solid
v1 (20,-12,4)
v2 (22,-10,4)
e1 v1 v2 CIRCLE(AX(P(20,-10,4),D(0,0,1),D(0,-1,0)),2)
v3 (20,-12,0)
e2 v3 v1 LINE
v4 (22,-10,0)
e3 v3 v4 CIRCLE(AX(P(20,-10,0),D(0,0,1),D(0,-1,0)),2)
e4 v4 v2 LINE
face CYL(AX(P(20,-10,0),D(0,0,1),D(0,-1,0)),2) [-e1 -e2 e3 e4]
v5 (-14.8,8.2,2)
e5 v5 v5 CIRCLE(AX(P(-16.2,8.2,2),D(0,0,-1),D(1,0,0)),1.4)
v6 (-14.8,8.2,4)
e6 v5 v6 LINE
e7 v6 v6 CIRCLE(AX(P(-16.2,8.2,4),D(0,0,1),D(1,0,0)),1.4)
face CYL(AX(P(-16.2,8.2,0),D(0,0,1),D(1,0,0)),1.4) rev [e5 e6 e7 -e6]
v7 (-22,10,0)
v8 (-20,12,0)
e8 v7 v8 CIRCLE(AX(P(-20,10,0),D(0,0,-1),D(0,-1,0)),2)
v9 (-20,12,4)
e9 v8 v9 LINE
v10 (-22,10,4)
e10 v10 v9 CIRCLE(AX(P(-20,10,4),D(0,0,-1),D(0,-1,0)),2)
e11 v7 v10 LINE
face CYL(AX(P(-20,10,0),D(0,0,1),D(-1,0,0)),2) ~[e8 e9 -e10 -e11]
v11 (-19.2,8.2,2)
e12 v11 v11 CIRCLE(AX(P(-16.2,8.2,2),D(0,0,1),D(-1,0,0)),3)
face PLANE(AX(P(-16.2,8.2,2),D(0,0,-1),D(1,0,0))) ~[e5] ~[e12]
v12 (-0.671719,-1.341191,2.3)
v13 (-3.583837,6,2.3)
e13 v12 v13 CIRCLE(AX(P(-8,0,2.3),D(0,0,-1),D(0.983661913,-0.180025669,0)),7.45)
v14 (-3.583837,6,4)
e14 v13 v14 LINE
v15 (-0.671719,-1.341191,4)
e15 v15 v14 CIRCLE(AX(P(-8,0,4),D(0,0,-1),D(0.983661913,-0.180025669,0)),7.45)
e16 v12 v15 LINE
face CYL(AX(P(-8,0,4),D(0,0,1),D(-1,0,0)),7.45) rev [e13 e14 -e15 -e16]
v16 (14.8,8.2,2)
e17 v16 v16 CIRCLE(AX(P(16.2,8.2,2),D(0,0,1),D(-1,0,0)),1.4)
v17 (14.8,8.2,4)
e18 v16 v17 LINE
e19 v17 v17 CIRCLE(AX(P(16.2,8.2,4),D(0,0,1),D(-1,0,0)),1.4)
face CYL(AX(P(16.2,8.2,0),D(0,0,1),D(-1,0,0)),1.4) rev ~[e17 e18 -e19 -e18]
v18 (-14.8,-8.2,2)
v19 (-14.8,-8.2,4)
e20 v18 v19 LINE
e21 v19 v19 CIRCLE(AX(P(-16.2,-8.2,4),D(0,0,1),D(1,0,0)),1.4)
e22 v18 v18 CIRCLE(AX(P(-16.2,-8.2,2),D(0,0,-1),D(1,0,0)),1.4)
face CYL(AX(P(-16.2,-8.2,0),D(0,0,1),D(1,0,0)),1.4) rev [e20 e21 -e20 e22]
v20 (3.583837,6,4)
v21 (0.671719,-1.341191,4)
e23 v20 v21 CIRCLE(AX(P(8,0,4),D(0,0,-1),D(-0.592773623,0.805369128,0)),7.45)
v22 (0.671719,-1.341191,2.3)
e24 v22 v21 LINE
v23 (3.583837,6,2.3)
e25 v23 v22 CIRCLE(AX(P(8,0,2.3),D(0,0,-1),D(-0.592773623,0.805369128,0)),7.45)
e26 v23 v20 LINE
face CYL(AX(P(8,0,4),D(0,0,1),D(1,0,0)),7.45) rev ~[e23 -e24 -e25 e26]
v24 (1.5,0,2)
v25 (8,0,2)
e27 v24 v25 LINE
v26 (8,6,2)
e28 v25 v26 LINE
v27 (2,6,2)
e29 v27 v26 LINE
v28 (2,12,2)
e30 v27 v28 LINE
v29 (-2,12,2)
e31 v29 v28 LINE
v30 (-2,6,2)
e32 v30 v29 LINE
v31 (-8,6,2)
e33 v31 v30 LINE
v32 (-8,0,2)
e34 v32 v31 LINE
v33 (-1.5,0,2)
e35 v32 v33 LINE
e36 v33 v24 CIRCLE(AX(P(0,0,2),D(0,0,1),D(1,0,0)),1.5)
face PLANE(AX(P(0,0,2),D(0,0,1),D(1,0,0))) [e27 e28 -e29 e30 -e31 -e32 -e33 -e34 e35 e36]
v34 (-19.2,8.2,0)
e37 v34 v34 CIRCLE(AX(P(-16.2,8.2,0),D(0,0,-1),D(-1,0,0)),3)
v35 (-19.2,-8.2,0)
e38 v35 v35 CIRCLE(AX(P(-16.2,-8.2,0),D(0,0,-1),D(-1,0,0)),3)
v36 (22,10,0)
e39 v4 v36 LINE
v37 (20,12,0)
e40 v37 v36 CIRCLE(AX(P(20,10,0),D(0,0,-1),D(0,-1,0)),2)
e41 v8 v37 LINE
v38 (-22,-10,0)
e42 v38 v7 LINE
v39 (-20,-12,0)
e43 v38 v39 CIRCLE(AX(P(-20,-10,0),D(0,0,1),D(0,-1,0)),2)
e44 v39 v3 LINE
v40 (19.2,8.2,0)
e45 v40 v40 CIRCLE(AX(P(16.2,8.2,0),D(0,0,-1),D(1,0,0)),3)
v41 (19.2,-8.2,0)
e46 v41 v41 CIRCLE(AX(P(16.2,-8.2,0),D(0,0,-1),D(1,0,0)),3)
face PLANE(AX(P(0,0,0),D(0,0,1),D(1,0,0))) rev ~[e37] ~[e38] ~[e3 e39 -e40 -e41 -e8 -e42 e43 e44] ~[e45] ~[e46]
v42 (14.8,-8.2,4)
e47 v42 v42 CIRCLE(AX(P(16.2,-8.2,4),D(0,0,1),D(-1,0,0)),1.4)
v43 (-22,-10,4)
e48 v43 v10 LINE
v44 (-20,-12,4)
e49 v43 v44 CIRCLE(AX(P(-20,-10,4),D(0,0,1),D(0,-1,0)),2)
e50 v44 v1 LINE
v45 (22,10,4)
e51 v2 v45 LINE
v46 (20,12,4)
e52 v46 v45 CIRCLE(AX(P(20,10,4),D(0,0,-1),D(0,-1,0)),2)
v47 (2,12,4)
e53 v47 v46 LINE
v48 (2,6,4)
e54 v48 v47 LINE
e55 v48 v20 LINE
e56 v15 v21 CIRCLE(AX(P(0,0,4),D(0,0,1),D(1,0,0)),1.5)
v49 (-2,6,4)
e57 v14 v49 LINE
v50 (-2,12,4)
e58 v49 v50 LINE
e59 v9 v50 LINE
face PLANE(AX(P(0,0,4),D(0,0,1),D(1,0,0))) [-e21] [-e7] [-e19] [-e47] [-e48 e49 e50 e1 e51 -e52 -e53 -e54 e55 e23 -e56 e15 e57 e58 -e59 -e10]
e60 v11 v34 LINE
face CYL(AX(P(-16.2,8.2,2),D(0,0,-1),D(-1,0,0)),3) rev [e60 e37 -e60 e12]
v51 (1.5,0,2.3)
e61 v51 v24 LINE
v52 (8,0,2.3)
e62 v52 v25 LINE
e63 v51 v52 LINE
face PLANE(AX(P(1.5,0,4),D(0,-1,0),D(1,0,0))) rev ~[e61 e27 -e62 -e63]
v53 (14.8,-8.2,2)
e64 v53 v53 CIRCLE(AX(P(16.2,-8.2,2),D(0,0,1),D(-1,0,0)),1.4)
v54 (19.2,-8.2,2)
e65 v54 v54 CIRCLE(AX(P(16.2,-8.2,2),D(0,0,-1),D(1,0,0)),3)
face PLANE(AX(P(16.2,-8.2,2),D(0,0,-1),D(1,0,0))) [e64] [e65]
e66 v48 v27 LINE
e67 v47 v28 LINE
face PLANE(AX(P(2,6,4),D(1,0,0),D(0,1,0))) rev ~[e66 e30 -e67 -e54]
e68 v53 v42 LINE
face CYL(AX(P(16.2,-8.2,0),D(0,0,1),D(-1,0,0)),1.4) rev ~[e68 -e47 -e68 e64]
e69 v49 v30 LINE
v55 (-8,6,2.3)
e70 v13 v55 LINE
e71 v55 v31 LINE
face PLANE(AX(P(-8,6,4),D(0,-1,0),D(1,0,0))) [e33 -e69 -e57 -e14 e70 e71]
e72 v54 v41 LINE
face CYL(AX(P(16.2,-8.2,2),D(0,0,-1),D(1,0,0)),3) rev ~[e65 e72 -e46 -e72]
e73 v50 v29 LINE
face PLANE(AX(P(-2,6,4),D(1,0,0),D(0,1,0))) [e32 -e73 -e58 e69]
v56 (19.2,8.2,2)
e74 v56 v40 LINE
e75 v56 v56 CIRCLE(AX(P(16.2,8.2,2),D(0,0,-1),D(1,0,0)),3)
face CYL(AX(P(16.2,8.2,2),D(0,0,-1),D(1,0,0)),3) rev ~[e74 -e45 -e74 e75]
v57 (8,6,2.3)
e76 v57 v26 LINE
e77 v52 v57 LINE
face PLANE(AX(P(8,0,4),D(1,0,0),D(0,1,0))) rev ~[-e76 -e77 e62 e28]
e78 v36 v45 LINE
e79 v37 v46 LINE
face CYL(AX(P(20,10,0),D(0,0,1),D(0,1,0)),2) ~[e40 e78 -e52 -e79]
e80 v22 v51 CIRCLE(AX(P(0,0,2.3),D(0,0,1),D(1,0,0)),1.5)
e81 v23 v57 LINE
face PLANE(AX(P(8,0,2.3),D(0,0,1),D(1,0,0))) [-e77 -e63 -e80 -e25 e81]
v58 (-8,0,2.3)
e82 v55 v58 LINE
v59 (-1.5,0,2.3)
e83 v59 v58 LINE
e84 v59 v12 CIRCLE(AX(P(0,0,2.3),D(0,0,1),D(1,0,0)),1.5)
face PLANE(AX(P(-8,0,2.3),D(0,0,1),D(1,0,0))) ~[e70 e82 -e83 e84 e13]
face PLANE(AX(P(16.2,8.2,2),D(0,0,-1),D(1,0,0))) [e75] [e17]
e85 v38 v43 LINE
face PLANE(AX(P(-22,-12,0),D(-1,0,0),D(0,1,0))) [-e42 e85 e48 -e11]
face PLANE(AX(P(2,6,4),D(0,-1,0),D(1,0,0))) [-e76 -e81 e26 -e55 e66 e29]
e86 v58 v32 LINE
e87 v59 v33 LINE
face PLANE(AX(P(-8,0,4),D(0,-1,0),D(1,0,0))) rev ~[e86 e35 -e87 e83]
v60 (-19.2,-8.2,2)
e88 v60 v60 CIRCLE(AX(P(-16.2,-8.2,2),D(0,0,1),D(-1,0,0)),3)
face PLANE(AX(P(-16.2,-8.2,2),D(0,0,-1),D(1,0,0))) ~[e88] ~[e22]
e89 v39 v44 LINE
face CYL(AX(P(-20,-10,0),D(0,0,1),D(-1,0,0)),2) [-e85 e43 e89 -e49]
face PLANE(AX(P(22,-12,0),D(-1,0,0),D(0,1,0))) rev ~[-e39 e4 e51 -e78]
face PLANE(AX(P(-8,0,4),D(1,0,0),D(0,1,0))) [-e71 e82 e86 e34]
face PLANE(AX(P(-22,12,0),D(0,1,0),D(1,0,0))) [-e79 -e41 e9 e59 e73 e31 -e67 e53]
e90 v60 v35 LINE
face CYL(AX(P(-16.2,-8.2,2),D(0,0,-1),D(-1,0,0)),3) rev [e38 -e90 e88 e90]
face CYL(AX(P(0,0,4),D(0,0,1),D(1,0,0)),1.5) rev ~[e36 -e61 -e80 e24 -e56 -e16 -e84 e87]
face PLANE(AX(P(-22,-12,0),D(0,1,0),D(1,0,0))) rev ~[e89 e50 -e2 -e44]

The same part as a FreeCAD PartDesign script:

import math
import FreeCAD as App
import Part
import Sketcher


def edges_at(feature, points):
    """Names of the edges that pass closest to the given points."""
    edges = feature.Shape.Edges
    near = lambda p: min(range(len(edges)), key=lambda i: edges[i].distToShape(Part.Vertex(*p))[0])
    return sorted({f"Edge{near(p) + 1}" for p in points})

doc = App.newDocument("Part")
body = doc.addObject("PartDesign::Body", "Body")

# Sketch on XY plane
sketch1 = body.newObject("Sketcher::SketchObject", "Sketch")
sketch1.AttachmentSupport = (doc.getObject("XY_Plane"), [""])
sketch1.MapMode = "FlatFace"
sketch1.addGeometry([
    Part.LineSegment(App.Vector(-22, 12, 0), App.Vector(-22, -12, 0)),
    Part.LineSegment(App.Vector(-22, -12, 0), App.Vector(22, -12, 0)),
    Part.LineSegment(App.Vector(22, -12, 0), App.Vector(22, 12, 0)),
    Part.LineSegment(App.Vector(22, 12, 0), App.Vector(-22, 12, 0)),
], False)
sketch1.addConstraint([
    Sketcher.Constraint("Coincident", 0, 2, 1, 1),
    Sketcher.Constraint("Coincident", 1, 2, 2, 1),
    Sketcher.Constraint("Coincident", 2, 2, 3, 1),
    Sketcher.Constraint("Coincident", 3, 2, 0, 1),
    Sketcher.Constraint("Vertical", 0),
    Sketcher.Constraint("Horizontal", 1),
    Sketcher.Constraint("Vertical", 2),
    Sketcher.Constraint("Horizontal", 3),
    Sketcher.Constraint("Symmetric", 0, 2, 2, 2, -1, 1),
    Sketcher.Constraint("DistanceX", 1, 1, 1, 2, 44.0),
    Sketcher.Constraint("DistanceY", 0, 2, 0, 1, 24.0),
])
pad1 = body.newObject("PartDesign::Pad", "Pad")
pad1.Profile = sketch1
pad1.Length = 4

# Sketch on XY plane
sketch2 = body.newObject("Sketcher::SketchObject", "Sketch001")
sketch2.AttachmentSupport = (doc.getObject("XY_Plane"), [""])
sketch2.MapMode = "FlatFace"
sketch2.AttachmentOffset = App.Placement(App.Vector(0, 0, 4), App.Rotation())
sketch2.addGeometry(Part.Circle(App.Vector(8, 0, 0), App.Vector(0, 0, 1), 7), False)
sketch2.addConstraint([
    Sketcher.Constraint("PointOnObject", 0, 3, -1),
    Sketcher.Constraint("Diameter", 0, 14.9),
    Sketcher.Constraint("DistanceX", -1, 1, 0, 3, 8.0),
])
pocket1 = body.newObject("PartDesign::Pocket", "Pocket")
pocket1.Profile = sketch2
pocket1.Length = 1.7
doc.recompute()

mirrored = body.newObject("PartDesign::Mirrored", "Mirrored")
mirrored.Originals = [pocket1]
mirrored.MirrorPlane = (doc.getObject("YZ_Plane"), [""])
body.Tip = mirrored

# Sketch on XY plane
sketch3 = body.newObject("Sketcher::SketchObject", "Sketch002")
sketch3.AttachmentSupport = (doc.getObject("XY_Plane"), [""])
sketch3.MapMode = "FlatFace"
sketch3.AttachmentOffset = App.Placement(App.Vector(0, 0, 4), App.Rotation())
sketch3.addGeometry([
    Part.ArcOfCircle(Part.Circle(App.Vector(0, 0, 0), App.Vector(0, 0, 1), 1.5), math.radians(180), math.radians(360)),  # 0
    Part.LineSegment(App.Vector(1.5, 0, 0), App.Vector(8, 0, 0)),  # 1
    Part.LineSegment(App.Vector(8, 0, 0), App.Vector(8, 6, 0)),  # 2
    Part.LineSegment(App.Vector(8, 6, 0), App.Vector(2, 6, 0)),  # 3
    Part.LineSegment(App.Vector(2, 6, 0), App.Vector(2, 12, 0)),  # 4
    Part.LineSegment(App.Vector(2, 12, 0), App.Vector(-2, 12, 0)),  # 5
    Part.LineSegment(App.Vector(-2, 12, 0), App.Vector(-2, 6, 0)),  # 6
    Part.LineSegment(App.Vector(-2, 6, 0), App.Vector(-8, 6, 0)),  # 7
    Part.LineSegment(App.Vector(-8, 6, 0), App.Vector(-8, 0, 0)),  # 8
    Part.LineSegment(App.Vector(-8, 0, 0), App.Vector(-1.5, 0, 0)),  # 9
], False)
sketch3.addConstraint([
    Sketcher.Constraint("Coincident", 0, 2, 1, 1),
    Sketcher.Constraint("Coincident", 1, 2, 2, 1),
    Sketcher.Constraint("Coincident", 2, 2, 3, 1),
    Sketcher.Constraint("Coincident", 3, 2, 4, 1),
    Sketcher.Constraint("Coincident", 4, 2, 5, 1),
    Sketcher.Constraint("Coincident", 5, 2, 6, 1),
    Sketcher.Constraint("Coincident", 6, 2, 7, 1),
    Sketcher.Constraint("Coincident", 7, 2, 8, 1),
    Sketcher.Constraint("Coincident", 8, 2, 9, 1),
    Sketcher.Constraint("Coincident", 9, 2, 0, 1),
    Sketcher.Constraint("Horizontal", 1),
    Sketcher.Constraint("Vertical", 2),
    Sketcher.Constraint("Horizontal", 3),
    Sketcher.Constraint("Vertical", 4),
    Sketcher.Constraint("Horizontal", 5),
    Sketcher.Constraint("Vertical", 6),
    Sketcher.Constraint("Horizontal", 7),
    Sketcher.Constraint("Vertical", 8),
    Sketcher.Constraint("Horizontal", 9),
    Sketcher.Constraint("Coincident", 0, 3, -1, 1),
    Sketcher.Constraint("Symmetric", 1, 2, 8, 2, -1, 1),
    Sketcher.Constraint("Symmetric", 3, 2, 6, 2, -2),
    Sketcher.Constraint("PointOnObject", 0, 2, -1),
    Sketcher.Constraint("Equal", 7, 2),
    Sketcher.Constraint("Equal", 2, 4),
    Sketcher.Constraint("Radius", 0, 1.5),
    Sketcher.Constraint("DistanceX", 3, 2, 3, 1, 6.0),
    Sketcher.Constraint("DistanceX", 5, 2, 5, 1, 4.0),
])
pocket2 = body.newObject("PartDesign::Pocket", "Pocket001")
pocket2.Profile = sketch3
pocket2.Length = 2

# Sketch on XY plane
sketch4 = body.newObject("Sketcher::SketchObject", "Sketch003")
sketch4.AttachmentSupport = (doc.getObject("XY_Plane"), [""])
sketch4.MapMode = "FlatFace"
sketch4.addGeometry([
    Part.Circle(App.Vector(16.2, -8.2, 0), App.Vector(0, 0, 1), 1.4),
    Part.Circle(App.Vector(16.2, 8.2, 0), App.Vector(0, 0, 1), 1.4),
], False)
sketch4.addConstraint([
    Sketcher.Constraint("Equal", 0, 1),
    Sketcher.Constraint("Symmetric", 0, 3, 1, 3, -1),
    Sketcher.Constraint("Diameter", 0, 2.8),
    Sketcher.Constraint("DistanceX", -1, 1, 0, 3, 16.2),
    Sketcher.Constraint("DistanceY", 0, 3, -1, 1, 8.2),
])
doc.recompute()
hole = body.newObject("PartDesign::Hole", "Hole")
hole.Profile = sketch4
hole.ThreadType = "None"
hole.Diameter = 2.8
hole.DepthType = "Dimension"
hole.Depth = 25
hole.DrillPoint = "Flat"
hole.HoleCutType = "Counterbore"
hole.HoleCutDiameter = 6
hole.HoleCutDepth = 2
hole.Reversed = True
doc.recompute()

mirrored2 = body.newObject("PartDesign::Mirrored", "Mirrored001")
mirrored2.Originals = [hole]
mirrored2.MirrorPlane = (doc.getObject("YZ_Plane"), [""])
body.Tip = mirrored2
doc.recompute()

fillet = body.newObject("PartDesign::Fillet", "Fillet")
fillet.Base = (mirrored2, edges_at(mirrored2, [
    (-22, 12, 2),
    (-22, -12, 2),
    (22, -12, 2),
    (22, 12, 2),
]))
fillet.Radius = 2

doc.recompute()
